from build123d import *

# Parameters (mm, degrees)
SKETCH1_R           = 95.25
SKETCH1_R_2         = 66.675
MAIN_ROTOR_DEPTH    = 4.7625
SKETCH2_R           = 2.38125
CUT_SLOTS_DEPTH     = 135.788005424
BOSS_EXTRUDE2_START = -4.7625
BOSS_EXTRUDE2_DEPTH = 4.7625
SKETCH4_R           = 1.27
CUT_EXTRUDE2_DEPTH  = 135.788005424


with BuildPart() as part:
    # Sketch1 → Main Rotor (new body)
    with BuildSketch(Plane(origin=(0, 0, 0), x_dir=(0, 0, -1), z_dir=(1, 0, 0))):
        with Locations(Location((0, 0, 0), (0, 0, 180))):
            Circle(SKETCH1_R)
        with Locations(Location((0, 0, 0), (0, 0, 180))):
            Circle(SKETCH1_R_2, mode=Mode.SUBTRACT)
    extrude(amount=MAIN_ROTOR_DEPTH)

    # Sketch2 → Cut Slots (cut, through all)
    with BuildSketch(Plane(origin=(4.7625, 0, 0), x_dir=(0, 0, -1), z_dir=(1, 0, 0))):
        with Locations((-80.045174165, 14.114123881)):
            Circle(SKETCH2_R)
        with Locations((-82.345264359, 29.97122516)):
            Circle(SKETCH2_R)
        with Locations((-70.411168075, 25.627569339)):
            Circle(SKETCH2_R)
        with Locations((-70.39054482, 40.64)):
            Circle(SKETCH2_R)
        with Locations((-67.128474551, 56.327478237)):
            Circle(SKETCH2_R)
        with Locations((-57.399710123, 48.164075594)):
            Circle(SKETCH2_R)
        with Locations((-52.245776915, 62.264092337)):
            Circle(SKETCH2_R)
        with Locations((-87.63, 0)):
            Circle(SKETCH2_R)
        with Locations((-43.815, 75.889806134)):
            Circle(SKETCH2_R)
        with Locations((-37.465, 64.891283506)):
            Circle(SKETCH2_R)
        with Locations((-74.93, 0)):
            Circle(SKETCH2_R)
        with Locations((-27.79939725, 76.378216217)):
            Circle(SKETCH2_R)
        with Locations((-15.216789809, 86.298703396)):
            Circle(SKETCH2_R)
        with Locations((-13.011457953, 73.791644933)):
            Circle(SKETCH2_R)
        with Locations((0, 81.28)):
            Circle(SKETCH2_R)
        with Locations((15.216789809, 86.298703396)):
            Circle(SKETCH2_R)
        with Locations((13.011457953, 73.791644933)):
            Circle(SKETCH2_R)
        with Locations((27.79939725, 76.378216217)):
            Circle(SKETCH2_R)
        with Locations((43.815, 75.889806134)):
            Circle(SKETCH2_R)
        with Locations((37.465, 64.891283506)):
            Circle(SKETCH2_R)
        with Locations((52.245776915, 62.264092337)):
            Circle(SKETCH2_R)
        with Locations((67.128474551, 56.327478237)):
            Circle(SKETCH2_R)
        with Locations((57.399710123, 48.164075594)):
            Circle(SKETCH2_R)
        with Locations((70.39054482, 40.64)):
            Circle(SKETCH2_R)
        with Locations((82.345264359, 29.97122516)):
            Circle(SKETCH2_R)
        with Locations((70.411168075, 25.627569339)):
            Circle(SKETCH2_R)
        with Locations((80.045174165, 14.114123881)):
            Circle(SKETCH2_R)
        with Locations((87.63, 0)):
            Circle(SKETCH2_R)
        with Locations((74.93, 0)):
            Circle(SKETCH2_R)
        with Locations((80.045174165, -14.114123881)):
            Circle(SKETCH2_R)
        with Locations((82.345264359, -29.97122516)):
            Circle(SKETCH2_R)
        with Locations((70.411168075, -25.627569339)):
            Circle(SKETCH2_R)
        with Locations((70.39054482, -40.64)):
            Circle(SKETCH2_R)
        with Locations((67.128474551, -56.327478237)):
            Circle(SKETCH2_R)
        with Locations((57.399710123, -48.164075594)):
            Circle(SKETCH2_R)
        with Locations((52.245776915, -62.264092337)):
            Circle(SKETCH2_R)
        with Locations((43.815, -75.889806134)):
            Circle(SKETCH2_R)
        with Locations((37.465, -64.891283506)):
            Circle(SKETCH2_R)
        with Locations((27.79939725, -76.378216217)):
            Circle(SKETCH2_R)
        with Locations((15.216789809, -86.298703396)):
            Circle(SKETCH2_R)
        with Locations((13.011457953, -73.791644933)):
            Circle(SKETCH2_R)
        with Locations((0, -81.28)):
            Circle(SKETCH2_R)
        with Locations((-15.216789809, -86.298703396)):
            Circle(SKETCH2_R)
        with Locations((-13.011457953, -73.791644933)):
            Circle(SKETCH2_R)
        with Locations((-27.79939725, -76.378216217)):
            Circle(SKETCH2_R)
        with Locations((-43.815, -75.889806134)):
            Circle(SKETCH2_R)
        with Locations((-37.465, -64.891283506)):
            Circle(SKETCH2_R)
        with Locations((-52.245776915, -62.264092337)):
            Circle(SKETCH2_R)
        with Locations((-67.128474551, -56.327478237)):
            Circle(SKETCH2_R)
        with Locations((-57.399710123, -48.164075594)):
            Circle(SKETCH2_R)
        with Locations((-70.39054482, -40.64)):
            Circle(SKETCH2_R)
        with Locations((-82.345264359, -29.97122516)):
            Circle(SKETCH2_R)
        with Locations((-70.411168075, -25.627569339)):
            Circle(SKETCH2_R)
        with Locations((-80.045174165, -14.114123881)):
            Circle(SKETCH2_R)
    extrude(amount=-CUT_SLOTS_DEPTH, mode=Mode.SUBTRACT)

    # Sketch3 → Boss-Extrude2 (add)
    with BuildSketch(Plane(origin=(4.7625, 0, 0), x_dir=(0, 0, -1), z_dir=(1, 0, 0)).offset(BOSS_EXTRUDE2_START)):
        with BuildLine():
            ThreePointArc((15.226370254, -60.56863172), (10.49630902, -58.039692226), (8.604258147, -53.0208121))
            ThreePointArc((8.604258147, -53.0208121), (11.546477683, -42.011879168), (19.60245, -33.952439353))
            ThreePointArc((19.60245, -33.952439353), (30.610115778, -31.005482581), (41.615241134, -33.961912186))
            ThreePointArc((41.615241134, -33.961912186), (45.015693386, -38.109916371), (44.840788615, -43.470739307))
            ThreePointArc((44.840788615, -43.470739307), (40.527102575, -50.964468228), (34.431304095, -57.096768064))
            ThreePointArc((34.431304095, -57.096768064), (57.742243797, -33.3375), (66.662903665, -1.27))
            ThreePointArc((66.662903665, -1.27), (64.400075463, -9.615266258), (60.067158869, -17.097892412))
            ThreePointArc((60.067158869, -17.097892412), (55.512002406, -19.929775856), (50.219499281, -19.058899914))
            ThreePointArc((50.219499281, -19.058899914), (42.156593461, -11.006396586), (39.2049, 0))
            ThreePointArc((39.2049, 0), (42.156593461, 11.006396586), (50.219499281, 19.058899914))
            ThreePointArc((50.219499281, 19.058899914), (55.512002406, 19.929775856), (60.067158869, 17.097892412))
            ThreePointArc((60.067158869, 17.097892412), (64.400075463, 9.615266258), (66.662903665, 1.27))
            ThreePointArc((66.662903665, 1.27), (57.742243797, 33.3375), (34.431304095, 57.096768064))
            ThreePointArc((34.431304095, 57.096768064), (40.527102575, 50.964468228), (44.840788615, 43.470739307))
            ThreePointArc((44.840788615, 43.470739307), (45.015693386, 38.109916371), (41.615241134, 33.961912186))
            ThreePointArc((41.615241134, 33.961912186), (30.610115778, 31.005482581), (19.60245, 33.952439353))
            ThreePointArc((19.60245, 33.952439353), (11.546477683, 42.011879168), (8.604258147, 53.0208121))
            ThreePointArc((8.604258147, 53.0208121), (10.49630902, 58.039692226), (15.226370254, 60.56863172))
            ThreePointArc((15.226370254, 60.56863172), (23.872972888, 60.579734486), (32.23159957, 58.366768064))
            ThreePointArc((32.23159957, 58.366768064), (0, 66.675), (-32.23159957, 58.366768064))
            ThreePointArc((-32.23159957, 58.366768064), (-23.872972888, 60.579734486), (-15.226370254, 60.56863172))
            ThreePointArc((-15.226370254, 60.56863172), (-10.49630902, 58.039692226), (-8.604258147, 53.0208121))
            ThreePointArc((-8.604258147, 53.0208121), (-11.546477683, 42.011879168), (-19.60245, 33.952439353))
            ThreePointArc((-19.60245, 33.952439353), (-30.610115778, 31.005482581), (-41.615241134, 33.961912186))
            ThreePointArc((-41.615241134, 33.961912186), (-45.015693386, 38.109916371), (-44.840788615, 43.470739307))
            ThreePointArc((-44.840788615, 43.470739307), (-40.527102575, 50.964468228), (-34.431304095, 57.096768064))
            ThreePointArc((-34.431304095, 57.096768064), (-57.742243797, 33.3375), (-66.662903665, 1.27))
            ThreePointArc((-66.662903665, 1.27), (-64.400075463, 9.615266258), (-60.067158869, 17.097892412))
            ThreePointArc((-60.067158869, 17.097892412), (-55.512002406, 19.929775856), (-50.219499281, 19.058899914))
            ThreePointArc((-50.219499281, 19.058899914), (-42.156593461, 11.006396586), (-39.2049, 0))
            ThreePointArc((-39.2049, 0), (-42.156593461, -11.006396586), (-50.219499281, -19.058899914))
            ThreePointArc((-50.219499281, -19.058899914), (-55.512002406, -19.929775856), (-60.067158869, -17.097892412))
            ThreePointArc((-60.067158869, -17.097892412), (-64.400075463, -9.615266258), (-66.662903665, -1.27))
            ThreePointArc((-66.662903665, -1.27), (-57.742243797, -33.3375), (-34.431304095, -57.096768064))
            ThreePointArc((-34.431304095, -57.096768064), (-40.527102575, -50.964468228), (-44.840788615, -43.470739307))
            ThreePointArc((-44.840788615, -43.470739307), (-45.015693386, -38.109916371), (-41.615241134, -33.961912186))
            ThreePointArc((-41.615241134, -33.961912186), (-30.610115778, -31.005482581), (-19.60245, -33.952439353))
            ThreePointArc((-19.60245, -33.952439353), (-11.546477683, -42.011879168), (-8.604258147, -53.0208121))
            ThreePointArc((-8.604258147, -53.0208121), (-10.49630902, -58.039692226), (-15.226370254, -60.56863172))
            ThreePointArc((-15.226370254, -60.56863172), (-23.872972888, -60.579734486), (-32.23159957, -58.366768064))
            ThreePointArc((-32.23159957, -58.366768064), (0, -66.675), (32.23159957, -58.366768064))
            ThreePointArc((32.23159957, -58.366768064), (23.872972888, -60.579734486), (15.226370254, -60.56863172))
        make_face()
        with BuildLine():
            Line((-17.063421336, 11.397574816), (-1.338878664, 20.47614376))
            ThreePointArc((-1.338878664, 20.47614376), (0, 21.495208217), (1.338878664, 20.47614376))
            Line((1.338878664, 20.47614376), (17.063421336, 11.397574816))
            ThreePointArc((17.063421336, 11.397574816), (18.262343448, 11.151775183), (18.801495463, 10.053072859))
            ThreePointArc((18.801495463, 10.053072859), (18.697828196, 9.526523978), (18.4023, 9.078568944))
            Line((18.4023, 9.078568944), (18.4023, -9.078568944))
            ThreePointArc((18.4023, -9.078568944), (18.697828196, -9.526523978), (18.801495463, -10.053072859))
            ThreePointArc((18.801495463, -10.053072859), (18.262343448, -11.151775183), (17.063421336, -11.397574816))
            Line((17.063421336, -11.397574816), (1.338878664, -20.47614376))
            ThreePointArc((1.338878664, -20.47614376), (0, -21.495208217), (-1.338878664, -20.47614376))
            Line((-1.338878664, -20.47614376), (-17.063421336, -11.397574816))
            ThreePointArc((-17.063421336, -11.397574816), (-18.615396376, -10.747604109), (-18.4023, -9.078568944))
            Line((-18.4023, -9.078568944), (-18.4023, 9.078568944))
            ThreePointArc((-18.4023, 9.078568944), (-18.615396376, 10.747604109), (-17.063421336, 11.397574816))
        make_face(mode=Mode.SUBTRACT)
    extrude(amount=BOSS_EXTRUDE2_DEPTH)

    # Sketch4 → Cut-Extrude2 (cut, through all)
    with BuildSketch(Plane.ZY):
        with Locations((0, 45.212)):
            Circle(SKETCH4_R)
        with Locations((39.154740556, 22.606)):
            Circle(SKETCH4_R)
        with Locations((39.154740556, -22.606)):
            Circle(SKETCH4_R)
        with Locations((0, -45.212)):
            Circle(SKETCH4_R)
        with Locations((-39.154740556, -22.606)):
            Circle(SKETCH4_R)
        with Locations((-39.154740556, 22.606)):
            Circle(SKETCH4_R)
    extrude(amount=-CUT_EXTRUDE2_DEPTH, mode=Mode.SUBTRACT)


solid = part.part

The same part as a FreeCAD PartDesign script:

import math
import FreeCAD as App
import Part
import Sketcher
Q = App.Units.Quantity

doc = App.newDocument("Part")
body = doc.addObject("PartDesign::Body", "Body")

# Sketch on YZ plane
sketch1 = body.newObject("Sketcher::SketchObject", "Sketch")
sketch1.AttachmentSupport = (doc.getObject("YZ_Plane"), [""])
sketch1.MapMode = "FlatFace"
sketch1.addGeometry([
    Part.Circle(App.Vector(0, 0, 0), App.Vector(0, 0, 1), 95),
    Part.Circle(App.Vector(0, 0, 0), App.Vector(0, 0, 1), 67),
], False)
sketch1.addConstraint([
    Sketcher.Constraint("Coincident", 0, 3, -1, 1),
    Sketcher.Constraint("Coincident", 1, 3, -1, 1),
    Sketcher.Constraint("Diameter", 0, Q("7.5 in")),
    Sketcher.Constraint("Diameter", 1, Q("5.25 in")),
])
pad1 = body.newObject("PartDesign::Pad", "Pad")
pad1.Profile = sketch1
pad1.Length = Q("0.1875 in")

# Sketch on YZ plane
sketch2 = body.newObject("Sketcher::SketchObject", "Sketch001")
sketch2.AttachmentSupport = (doc.getObject("YZ_Plane"), [""])
sketch2.MapMode = "FlatFace"
sketch2.AttachmentOffset = App.Placement(App.Vector(0, 0, 0.1875 * 25.4), App.Rotation())
sketch2.addGeometry([
    Part.Circle(App.Vector(14.1, 80, 0), App.Vector(0, 0, 1), 2.4),  # 0
    Part.Circle(App.Vector(30, 82.3, 0), App.Vector(0, 0, 1), 2.4),  # 1
    Part.Circle(App.Vector(25.6, 70.4, 0), App.Vector(0, 0, 1), 2.4),  # 2
    Part.Circle(App.Vector(40.6, 70.4, 0), App.Vector(0, 0, 1), 2.4),  # 3
    Part.Circle(App.Vector(56.3, 67.1, 0), App.Vector(0, 0, 1), 2.4),  # 4
    Part.Circle(App.Vector(48.2, 57.4, 0), App.Vector(0, 0, 1), 2.4),  # 5
    Part.Circle(App.Vector(62.3, 52.2, 0), App.Vector(0, 0, 1), 2.4),  # 6
    Part.Circle(App.Vector(0, 87.6, 0), App.Vector(0, 0, 1), 2.4),  # 7
    Part.Circle(App.Vector(75.9, 43.8, 0), App.Vector(0, 0, 1), 2.4),  # 8
    Part.Circle(App.Vector(64.9, 37.5, 0), App.Vector(0, 0, 1), 2.4),  # 9
    Part.Circle(App.Vector(0, 74.9, 0), App.Vector(0, 0, 1), 2.4),  # 10
    Part.Circle(App.Vector(76.4, 27.8, 0), App.Vector(0, 0, 1), 2.4),  # 11
    Part.Circle(App.Vector(86.3, 15.2, 0), App.Vector(0, 0, 1), 2.4),  # 12
    Part.Circle(App.Vector(73.8, 13, 0), App.Vector(0, 0, 1), 2.4),  # 13
    Part.Circle(App.Vector(81.3, 0, 0), App.Vector(0, 0, 1), 2.4),  # 14
    Part.Circle(App.Vector(86.3, -15.2, 0), App.Vector(0, 0, 1), 2.4),  # 15
    Part.Circle(App.Vector(73.8, -13, 0), App.Vector(0, 0, 1), 2.4),  # 16
    Part.Circle(App.Vector(76.4, -27.8, 0), App.Vector(0, 0, 1), 2.4),  # 17
    Part.Circle(App.Vector(75.9, -43.8, 0), App.Vector(0, 0, 1), 2.4),  # 18
    Part.Circle(App.Vector(64.9, -37.5, 0), App.Vector(0, 0, 1), 2.4),  # 19
    Part.Circle(App.Vector(62.3, -52.2, 0), App.Vector(0, 0, 1), 2.4),  # 20
    Part.Circle(App.Vector(56.3, -67.1, 0), App.Vector(0, 0, 1), 2.4),  # 21
    Part.Circle(App.Vector(48.2, -57.4, 0), App.Vector(0, 0, 1), 2.4),  # 22
    Part.Circle(App.Vector(40.6, -70.4, 0), App.Vector(0, 0, 1), 2.4),  # 23
    Part.Circle(App.Vector(30, -82.3, 0), App.Vector(0, 0, 1), 2.4),  # 24
    Part.Circle(App.Vector(25.6, -70.4, 0), App.Vector(0, 0, 1), 2.4),  # 25
    Part.Circle(App.Vector(14.1, -80, 0), App.Vector(0, 0, 1), 2.4),  # 26
    Part.Circle(App.Vector(0, -87.6, 0), App.Vector(0, 0, 1), 2.4),  # 27
    Part.Circle(App.Vector(0, -74.9, 0), App.Vector(0, 0, 1), 2.4),  # 28
    Part.Circle(App.Vector(-14.1, -80, 0), App.Vector(0, 0, 1), 2.4),  # 29
    Part.Circle(App.Vector(-30, -82.3, 0), App.Vector(0, 0, 1), 2.4),  # 30
    Part.Circle(App.Vector(-25.6, -70.4, 0), App.Vector(0, 0, 1), 2.4),  # 31
    Part.Circle(App.Vector(-40.6, -70.4, 0), App.Vector(0, 0, 1), 2.4),  # 32
    Part.Circle(App.Vector(-56.3, -67.1, 0), App.Vector(0, 0, 1), 2.4),  # 33
    Part.Circle(App.Vector(-48.2, -57.4, 0), App.Vector(0, 0, 1), 2.4),  # 34
    Part.Circle(App.Vector(-62.3, -52.2, 0), App.Vector(0, 0, 1), 2.4),  # 35
    Part.Circle(App.Vector(-75.9, -43.8, 0), App.Vector(0, 0, 1), 2.4),  # 36
    Part.Circle(App.Vector(-64.9, -37.5, 0), App.Vector(0, 0, 1), 2.4),  # 37
    Part.Circle(App.Vector(-76.4, -27.8, 0), App.Vector(0, 0, 1), 2.4),  # 38
    Part.Circle(App.Vector(-86.3, -15.2, 0), App.Vector(0, 0, 1), 2.4),  # 39
    Part.Circle(App.Vector(-73.8, -13, 0), App.Vector(0, 0, 1), 2.4),  # 40
    Part.Circle(App.Vector(-81.3, 0, 0), App.Vector(0, 0, 1), 2.4),  # 41
    Part.Circle(App.Vector(-86.3, 15.2, 0), App.Vector(0, 0, 1), 2.4),  # 42
    Part.Circle(App.Vector(-73.8, 13, 0), App.Vector(0, 0, 1), 2.4),  # 43
    Part.Circle(App.Vector(-76.4, 27.8, 0), App.Vector(0, 0, 1), 2.4),  # 44
    Part.Circle(App.Vector(-75.9, 43.8, 0), App.Vector(0, 0, 1), 2.4),  # 45
    Part.Circle(App.Vector(-64.9, 37.5, 0), App.Vector(0, 0, 1), 2.4),  # 46
    Part.Circle(App.Vector(-62.3, 52.2, 0), App.Vector(0, 0, 1), 2.4),  # 47
    Part.Circle(App.Vector(-56.3, 67.1, 0), App.Vector(0, 0, 1), 2.4),  # 48
    Part.Circle(App.Vector(-48.2, 57.4, 0), App.Vector(0, 0, 1), 2.4),  # 49
    Part.Circle(App.Vector(-40.6, 70.4, 0), App.Vector(0, 0, 1), 2.4),  # 50
    Part.Circle(App.Vector(-30, 82.3, 0), App.Vector(0, 0, 1), 2.4),  # 51
    Part.Circle(App.Vector(-25.6, 70.4, 0), App.Vector(0, 0, 1), 2.4),  # 52
    Part.Circle(App.Vector(-14.1, 80, 0), App.Vector(0, 0, 1), 2.4),  # 53
], False)
sketch2.addConstraint([
    Sketcher.Constraint("Equal", 0, 1),
    Sketcher.Constraint("Equal", 1, 2),
    Sketcher.Constraint("Equal", 2, 3),
    Sketcher.Constraint("Equal", 3, 4),
    Sketcher.Constraint("Equal", 4, 5),
    Sketcher.Constraint("Equal", 5, 6),
    Sketcher.Constraint("Equal", 6, 7),
    Sketcher.Constraint("Equal", 7, 8),
    Sketcher.Constraint("Equal", 8, 9),
    Sketcher.Constraint("Equal", 9, 10),
    Sketcher.Constraint("Equal", 10, 11),
    Sketcher.Constraint("Equal", 11, 12),
    Sketcher.Constraint("Equal", 12, 13),
    Sketcher.Constraint("Equal", 13, 14),
    Sketcher.Constraint("Equal", 14, 15),
    Sketcher.Constraint("Equal", 15, 16),
    Sketcher.Constraint("Equal", 16, 17),
    Sketcher.Constraint("Equal", 17, 18),
    Sketcher.Constraint("Equal", 18, 19),
    Sketcher.Constraint("Equal", 19, 20),
    Sketcher.Constraint("Equal", 20, 21),
    Sketcher.Constraint("Equal", 21, 22),
    Sketcher.Constraint("Equal", 22, 23),
    Sketcher.Constraint("Equal", 23, 24),
    Sketcher.Constraint("Equal", 24, 25),
    Sketcher.Constraint("Equal", 25, 26),
    Sketcher.Constraint("Equal", 26, 27),
    Sketcher.Constraint("Equal", 27, 28),
    Sketcher.Constraint("Equal", 28, 29),
    Sketcher.Constraint("Equal", 29, 30),
    Sketcher.Constraint("Equal", 30, 31),
    Sketcher.Constraint("Equal", 31, 32),
    Sketcher.Constraint("Equal", 32, 33),
    Sketcher.Constraint("Equal", 33, 34),
    Sketcher.Constraint("Equal", 34, 35),
    Sketcher.Constraint("Equal", 35, 36),
    Sketcher.Constraint("Equal", 36, 37),
    Sketcher.Constraint("Equal", 37, 38),
    Sketcher.Constraint("Equal", 38, 39),
    Sketcher.Constraint("Equal", 39, 40),
    Sketcher.Constraint("Equal", 40, 41),
    Sketcher.Constraint("Equal", 41, 42),
    Sketcher.Constraint("Equal", 42, 43),
    Sketcher.Constraint("Equal", 43, 44),
    Sketcher.Constraint("Equal", 44, 45),
    Sketcher.Constraint("Equal", 45, 46),
    Sketcher.Constraint("Equal", 46, 47),
    Sketcher.Constraint("Equal", 47, 48),
    Sketcher.Constraint("Equal", 48, 49),
    Sketcher.Constraint("Equal", 49, 50),
    Sketcher.Constraint("Equal", 50, 51),
    Sketcher.Constraint("Equal", 51, 52),
    Sketcher.Constraint("Equal", 52, 53),
    Sketcher.Constraint("Symmetric", 7, 3, 27, 3, -1, 1),
    Sketcher.Constraint("Symmetric", 10, 3, 28, 3, -1, 1),
    Sketcher.Constraint("Symmetric", 0, 3, 29, 3, -1, 1),
    Sketcher.Constraint("Symmetric", 1, 3, 30, 3, -1, 1),
    Sketcher.Constraint("Symmetric", 2, 3, 31, 3, -1, 1),
    Sketcher.Constraint("Symmetric", 3, 3, 32, 3, -1, 1),
    Sketcher.Constraint("Symmetric", 4, 3, 33, 3, -1, 1),
    Sketcher.Constraint("Symmetric", 5, 3, 34, 3, -1, 1),
    Sketcher.Constraint("Symmetric", 6, 3, 35, 3, -1, 1),
    Sketcher.Constraint("Symmetric", 8, 3, 36, 3, -1, 1),
    Sketcher.Constraint("Symmetric", 9, 3, 37, 3, -1, 1),
    Sketcher.Constraint("Symmetric", 11, 3, 38, 3, -1, 1),
    Sketcher.Constraint("Symmetric", 12, 3, 39, 3, -1, 1),
    Sketcher.Constraint("Symmetric", 13, 3, 40, 3, -1, 1),
    Sketcher.Constraint("Symmetric", 14, 3, 41, 3, -1, 1),
    Sketcher.Constraint("Symmetric", 15, 3, 42, 3, -1, 1),
    Sketcher.Constraint("Symmetric", 16, 3, 43, 3, -1, 1),
    Sketcher.Constraint("Symmetric", 17, 3, 44, 3, -1, 1),
    Sketcher.Constraint("Symmetric", 18, 3, 45, 3, -1, 1),
    Sketcher.Constraint("Symmetric", 19, 3, 46, 3, -1, 1),
    Sketcher.Constraint("Symmetric", 20, 3, 47, 3, -1, 1),
    Sketcher.Constraint("Symmetric", 21, 3, 48, 3, -1, 1),
    Sketcher.Constraint("Symmetric", 22, 3, 49, 3, -1, 1),
    Sketcher.Constraint("Symmetric", 23, 3, 50, 3, -1, 1),
    Sketcher.Constraint("Symmetric", 24, 3, 51, 3, -1, 1),
    Sketcher.Constraint("Symmetric", 25, 3, 52, 3, -1, 1),
    Sketcher.Constraint("Symmetric", 26, 3, 53, 3, -1, 1),
    Sketcher.Constraint("Symmetric", 26, 3, 29, 3, -2),
    Sketcher.Constraint("Symmetric", 24, 3, 30, 3, -2),
    Sketcher.Constraint("Symmetric", 25, 3, 31, 3, -2),
    Sketcher.Constraint("Symmetric", 23, 3, 32, 3, -2),
    Sketcher.Constraint("Symmetric", 21, 3, 33, 3, -2),
    Sketcher.Constraint("Symmetric", 22, 3, 34, 3, -2),
    Sketcher.Constraint("Symmetric", 20, 3, 35, 3, -2),
    Sketcher.Constraint("Symmetric", 18, 3, 36, 3, -2),
    Sketcher.Constraint("Symmetric", 19, 3, 37, 3, -2),
    Sketcher.Constraint("Symmetric", 17, 3, 38, 3, -2),
    Sketcher.Constraint("Symmetric", 15, 3, 39, 3, -2),
    Sketcher.Constraint("Symmetric", 16, 3, 40, 3, -2),
    Sketcher.Constraint("PointOnObject", 7, 3, -2),
    Sketcher.Constraint("PointOnObject", 10, 3, -2),
    Sketcher.Constraint("PointOnObject", 14, 3, -1),
    Sketcher.Constraint("Diameter", 0, Q("0.1875 in")),
    Sketcher.Constraint("DistanceX", -1, 1, 3, 3, Q("1.6 in")),
    Sketcher.Constraint("DistanceX", -1, 1, 14, 3, Q("3.2 in")),
    Sketcher.Constraint("DistanceY", 10, 3, 7, 3, Q("0.5 in")),
    Sketcher.Constraint("DistanceY", -1, 1, 7, 3, Q("3.45 in")),
    Sketcher.Constraint("DistanceY", 9, 3, 8, 3, Q("0.25 in")),
    Sketcher.Constraint("DistanceY", -1, 1, 8, 3, Q("1.725 in")),
    Sketcher.Constraint("DistanceX", 0, 3, 1, 3, Q("15.857101 mm")),
    Sketcher.Constraint("DistanceY", 4, 3, 0, 3, Q("12.9167 mm")),
    Sketcher.Constraint("DistanceX", -1, 1, 2, 3, Q("25.627569 mm")),
    Sketcher.Constraint("DistanceY", -1, 1, 2, 3, Q("70.411168 mm")),
    Sketcher.Constraint("DistanceX", -1, 1, 4, 3, Q("56.327478 mm")),
    Sketcher.Constraint("DistanceY", -1, 1, 5, 3, Q("57.39971 mm")),
    Sketcher.Constraint("DistanceY", -1, 1, 12, 3, Q("15.21679 mm")),
    Sketcher.Constraint("DistanceY", 0, 3, 1, 3, Q("2.30009 mm")),
    Sketcher.Constraint("DistanceY", 3, 3, 1, 3, Q("11.95472 mm")),
    Sketcher.Constraint("DistanceX", 1, 3, 5, 3, Q("18.19285 mm")),
    Sketcher.Constraint("DistanceY", 6, 3, 2, 3, Q("18.165391 mm")),
    Sketcher.Constraint("DistanceX", 5, 3, 8, 3, Q("27.725731 mm")),
    Sketcher.Constraint("DistanceX", 6, 3, 9, 3, Q("2.627191 mm")),
    Sketcher.Constraint("DistanceX", 8, 3, 11, 3, Q("0.48841 mm")),
    Sketcher.Constraint("DistanceY", 11, 3, 6, 3, Q("24.44638 mm")),
    Sketcher.Constraint("DistanceX", 9, 3, 12, 3, Q("21.40742 mm")),
    Sketcher.Constraint("DistanceX", 13, 3, 12, 3, Q("12.507058 mm")),
    Sketcher.Constraint("DistanceY", 13, 3, 12, 3, Q("2.205332 mm")),
    Sketcher.Constraint("DistanceX", 13, 3, 11, 3, Q("2.586571 mm")),
    Sketcher.Constraint("DistanceX", 29, 3, 24, 3, Q("44.085349 mm")),
    Sketcher.Constraint("DistanceY", -1, 1, 0, 3, Q("80.045174 mm")),
])
pocket1 = body.newObject("PartDesign::Pocket", "Pocket")
pocket1.Profile = sketch2
pocket1.Type = "ThroughAll"

# Sketch on YZ plane
sketch3 = body.newObject("Sketcher::SketchObject", "Sketch002")
sketch3.AttachmentSupport = (doc.getObject("YZ_Plane"), [""])
sketch3.MapMode = "FlatFace"
sketch3.addGeometry([
    Part.ArcOfCircle(Part.Circle(App.Vector(-53, -16.2, 0), App.Vector(0, 0, 1), 7.6), math.radians(90), math.radians(172)),  # 0
    Part.ArcOfCircle(Part.Circle(App.Vector(-53, -30.6, 0), App.Vector(0, 0, 1), 22), math.radians(30), math.radians(90)),  # 1
    Part.ArcOfCircle(Part.Circle(App.Vector(-53, -30.6, 0), App.Vector(0, 0, 1), 22), math.radians(-30), math.radians(30)),  # 2
    Part.ArcOfCircle(Part.Circle(App.Vector(-40.6, -37.8, 0), App.Vector(0, 0, 1), 7.6), math.radians(-112), math.radians(-30)),  # 3
    Part.ArcOfCircle(Part.Circle(App.Vector(-30.7, -14, 0), App.Vector(0, 0, 1), 33.3), math.radians(-142), math.radians(-112)),  # 4
    Part.ArcOfCircle(Part.Circle(App.Vector(0, 0, 0), App.Vector(0, 0, 1), 66.7), math.radians(-149), math.radians(-91)),  # 5
    Part.ArcOfCircle(Part.Circle(App.Vector(3.2, -33.6, 0), App.Vector(0, 0, 1), 33.3), math.radians(-128), math.radians(-98)),  # 6
    Part.ArcOfCircle(Part.Circle(App.Vector(-12.5, -54, 0), App.Vector(0, 0, 1), 7.6), math.radians(150), math.radians(232)),  # 7
    Part.ArcOfCircle(Part.Circle(App.Vector(0, -61.2, 0), App.Vector(0, 0, 1), 22), math.radians(90), math.radians(150)),  # 8
    Part.ArcOfCircle(Part.Circle(App.Vector(0, -61.2, 0), App.Vector(0, 0, 1), 22), math.radians(30), math.radians(90)),  # 9
    Part.ArcOfCircle(Part.Circle(App.Vector(12.5, -54, 0), App.Vector(0, 0, 1), 7.6), math.radians(-52), math.radians(30)),  # 10
    Part.ArcOfCircle(Part.Circle(App.Vector(-3.2, -33.6, 0), App.Vector(0, 0, 1), 33.3), math.radians(-82), math.radians(-52)),  # 11
    Part.ArcOfCircle(Part.Circle(App.Vector(0, 0, 0), App.Vector(0, 0, 1), 66.7), math.radians(-89), math.radians(-31)),  # 12
    Part.ArcOfCircle(Part.Circle(App.Vector(30.7, -14, 0), App.Vector(0, 0, 1), 33.3), math.radians(-68), math.radians(-38)),  # 13
    Part.ArcOfCircle(Part.Circle(App.Vector(40.6, -37.8, 0), App.Vector(0, 0, 1), 7.6), math.radians(-150), math.radians(-68)),  # 14
    Part.ArcOfCircle(Part.Circle(App.Vector(53, -30.6, 0), App.Vector(0, 0, 1), 22), math.radians(150), math.radians(210)),  # 15
    Part.ArcOfCircle(Part.Circle(App.Vector(53, -30.6, 0), App.Vector(0, 0, 1), 22), math.radians(90), math.radians(150)),  # 16
    Part.ArcOfCircle(Part.Circle(App.Vector(53, -16.2, 0), App.Vector(0, 0, 1), 7.6), math.radians(8), math.radians(90)),  # 17
    Part.ArcOfCircle(Part.Circle(App.Vector(27.5, -19.6, 0), App.Vector(0, 0, 1), 33.3), math.radians(-22), math.radians(8)),  # 18
    Part.ArcOfCircle(Part.Circle(App.Vector(0, 0, 0), App.Vector(0, 0, 1), 66.7), math.radians(-29), math.radians(29)),  # 19
    Part.ArcOfCircle(Part.Circle(App.Vector(27.5, 19.6, 0), App.Vector(0, 0, 1), 33.3), math.radians(-8), math.radians(22)),  # 20
    Part.ArcOfCircle(Part.Circle(App.Vector(53, 16.2, 0), App.Vector(0, 0, 1), 7.6), math.radians(-90), math.radians(-8)),  # 21
    Part.ArcOfCircle(Part.Circle(App.Vector(53, 30.6, 0), App.Vector(0, 0, 1), 22), math.radians(-150), math.radians(-90)),  # 22
    Part.ArcOfCircle(Part.Circle(App.Vector(53, 30.6, 0), App.Vector(0, 0, 1), 22), math.radians(150), math.radians(210)),  # 23
    Part.ArcOfCircle(Part.Circle(App.Vector(40.6, 37.8, 0), App.Vector(0, 0, 1), 7.6), math.radians(68), math.radians(150)),  # 24
    Part.ArcOfCircle(Part.Circle(App.Vector(30.7, 14, 0), App.Vector(0, 0, 1), 33.3), math.radians(38), math.radians(68)),  # 25
    Part.ArcOfCircle(Part.Circle(App.Vector(0, 0, 0), App.Vector(0, 0, 1), 66.7), math.radians(31), math.radians(89)),  # 26
    Part.ArcOfCircle(Part.Circle(App.Vector(-3.2, 33.6, 0), App.Vector(0, 0, 1), 33.3), math.radians(52), math.radians(82)),  # 27
    Part.ArcOfCircle(Part.Circle(App.Vector(12.5, 54, 0), App.Vector(0, 0, 1), 7.6), math.radians(-30), math.radians(52)),  # 28
    Part.ArcOfCircle(Part.Circle(App.Vector(0, 61.2, 0), App.Vector(0, 0, 1), 22), math.radians(-90), math.radians(-30)),  # 29
    Part.ArcOfCircle(Part.Circle(App.Vector(0, 61.2, 0), App.Vector(0, 0, 1), 22), math.radians(-150), math.radians(-90)),  # 30
    Part.ArcOfCircle(Part.Circle(App.Vector(-12.5, 54, 0), App.Vector(0, 0, 1), 7.6), math.radians(128), math.radians(210)),  # 31
    Part.ArcOfCircle(Part.Circle(App.Vector(3.2, 33.6, 0), App.Vector(0, 0, 1), 33.3), math.radians(98), math.radians(128)),  # 32
    Part.ArcOfCircle(Part.Circle(App.Vector(0, 0, 0), App.Vector(0, 0, 1), 66.7), math.radians(91), math.radians(149)),  # 33
    Part.ArcOfCircle(Part.Circle(App.Vector(-30.7, 14, 0), App.Vector(0, 0, 1), 33.3), math.radians(112), math.radians(142)),  # 34
    Part.ArcOfCircle(Part.Circle(App.Vector(-40.6, 37.8, 0), App.Vector(0, 0, 1), 7.6), math.radians(30), math.radians(112)),  # 35
    Part.ArcOfCircle(Part.Circle(App.Vector(-53, 30.6, 0), App.Vector(0, 0, 1), 22), math.radians(-30), math.radians(30)),  # 36
    Part.ArcOfCircle(Part.Circle(App.Vector(-53, 30.6, 0), App.Vector(0, 0, 1), 22), math.radians(-90), math.radians(-30)),  # 37
    Part.ArcOfCircle(Part.Circle(App.Vector(-53, 16.2, 0), App.Vector(0, 0, 1), 7.6), math.radians(-172), math.radians(-90)),  # 38
    Part.ArcOfCircle(Part.Circle(App.Vector(-27.5, 19.6, 0), App.Vector(0, 0, 1), 33.3), math.radians(158), math.radians(188)),  # 39
    Part.ArcOfCircle(Part.Circle(App.Vector(0, 0, 0), App.Vector(0, 0, 1), 66.7), math.radians(151), math.radians(209)),  # 40
    Part.ArcOfCircle(Part.Circle(App.Vector(-27.5, -19.6, 0), App.Vector(0, 0, 1), 33.3), math.radians(172), math.radians(202)),  # 41
    Part.ArcOfCircle(Part.Circle(App.Vector(10.1, 17.4, 0), App.Vector(0, 0, 1), 1.4), math.radians(-15), math.radians(135)),  # 42
    Part.LineSegment(App.Vector(11.4, 17.1, 0), App.Vector(20.5, 1.3, 0)),  # 43
    Part.ArcOfCircle(Part.Circle(App.Vector(20.1, 0, 0), App.Vector(0, 0, 1), 1.4), math.radians(-75), math.radians(75)),  # 44
    Part.LineSegment(App.Vector(20.5, -1.3, 0), App.Vector(11.4, -17.1, 0)),  # 45
    Part.ArcOfCircle(Part.Circle(App.Vector(10.1, -17.4, 0), App.Vector(0, 0, 1), 1.4), math.radians(-90), math.radians(15)),  # 46
    Part.ArcOfCircle(Part.Circle(App.Vector(10.1, -17.4, 0), App.Vector(0, 0, 1), 1.4), math.radians(-135), math.radians(-90)),  # 47
    Part.LineSegment(App.Vector(9.1, -18.4, 0), App.Vector(-9.1, -18.4, 0)),  # 48
    Part.ArcOfCircle(Part.Circle(App.Vector(-10.1, -17.4, 0), App.Vector(0, 0, 1), 1.4), math.radians(-90), math.radians(-45)),  # 49
    Part.ArcOfCircle(Part.Circle(App.Vector(-10.1, -17.4, 0), App.Vector(0, 0, 1), 1.4), math.radians(165), math.radians(270)),  # 50
    Part.LineSegment(App.Vector(-11.4, -17.1, 0), App.Vector(-20.5, -1.3, 0)),  # 51
    Part.ArcOfCircle(Part.Circle(App.Vector(-20.1, 0, 0), App.Vector(0, 0, 1), 1.4), math.radians(105), math.radians(255)),  # 52
    Part.LineSegment(App.Vector(-20.5, 1.3, 0), App.Vector(-11.4, 17.1, 0)),  # 53
    Part.ArcOfCircle(Part.Circle(App.Vector(-10.1, 17.4, 0), App.Vector(0, 0, 1), 1.4), math.radians(45), math.radians(195)),  # 54
    Part.LineSegment(App.Vector(-9.1, 18.4, 0), App.Vector(9.1, 18.4, 0)),  # 55
], False)
sketch3.addConstraint([
    Sketcher.Constraint("Tangent", 0, 1, 1, 2),
    Sketcher.Constraint("Tangent", 1, 1, 2, 2),
    Sketcher.Constraint("Tangent", 2, 1, 3, 2),
    Sketcher.Constraint("Tangent", 3, 1, 4, 2),
    Sketcher.Constraint("Coincident", 4, 1, 5, 1),
    Sketcher.Constraint("Coincident", 5, 2, 6, 2),
    Sketcher.Constraint("Tangent", 6, 1, 7, 2),
    Sketcher.Constraint("Tangent", 7, 1, 8, 2),
    Sketcher.Constraint("Tangent", 8, 1, 9, 2),
    Sketcher.Constraint("Tangent", 9, 1, 10, 2),
    Sketcher.Constraint("Tangent", 10, 1, 11, 2),
    Sketcher.Constraint("Coincident", 11, 1, 12, 1),
    Sketcher.Constraint("Coincident", 12, 2, 13, 2),
    Sketcher.Constraint("Tangent", 13, 1, 14, 2),
    Sketcher.Constraint("Tangent", 14, 1, 15, 2),
    Sketcher.Constraint("Tangent", 15, 1, 16, 2),
    Sketcher.Constraint("Tangent", 16, 1, 17, 2),
    Sketcher.Constraint("Tangent", 17, 1, 18, 2),
    Sketcher.Constraint("Coincident", 18, 1, 19, 1),
    Sketcher.Constraint("Coincident", 19, 2, 20, 2),
    Sketcher.Constraint("Tangent", 20, 1, 21, 2),
    Sketcher.Constraint("Tangent", 21, 1, 22, 2),
    Sketcher.Constraint("Tangent", 22, 1, 23, 2),
    Sketcher.Constraint("Tangent", 23, 1, 24, 2),
    Sketcher.Constraint("Tangent", 24, 1, 25, 2),
    Sketcher.Constraint("Coincident", 25, 1, 26, 1),
    Sketcher.Constraint("Coincident", 26, 2, 27, 2),
    Sketcher.Constraint("Tangent", 27, 1, 28, 2),
    Sketcher.Constraint("Tangent", 28, 1, 29, 2),
    Sketcher.Constraint("Tangent", 29, 1, 30, 2),
    Sketcher.Constraint("Tangent", 30, 1, 31, 2),
    Sketcher.Constraint("Tangent", 31, 1, 32, 2),
    Sketcher.Constraint("Coincident", 32, 1, 33, 1),
    Sketcher.Constraint("Coincident", 33, 2, 34, 2),
    Sketcher.Constraint("Tangent", 34, 1, 35, 2),
    Sketcher.Constraint("Tangent", 35, 1, 36, 2),
    Sketcher.Constraint("Tangent", 36, 1, 37, 2),
    Sketcher.Constraint("Tangent", 37, 1, 38, 2),
    Sketcher.Constraint("Tangent", 38, 1, 39, 2),
    Sketcher.Constraint("Coincident", 39, 1, 40, 1),
    Sketcher.Constraint("Coincident", 40, 2, 41, 2),
    Sketcher.Constraint("Tangent", 41, 1, 0, 2),
    Sketcher.Constraint("Coincident", 42, 1, 43, 1),
    Sketcher.Constraint("Coincident", 43, 2, 44, 2),
    Sketcher.Constraint("Coincident", 44, 1, 45, 1),
    Sketcher.Constraint("Coincident", 45, 2, 46, 2),
    Sketcher.Constraint("Tangent", 46, 1, 47, 2),
    Sketcher.Constraint("Coincident", 47, 1, 48, 1),
    Sketcher.Constraint("Coincident", 48, 2, 49, 2),
    Sketcher.Constraint("Tangent", 49, 1, 50, 2),
    Sketcher.Constraint("Coincident", 50, 1, 51, 1),
    Sketcher.Constraint("Coincident", 51, 2, 52, 2),
    Sketcher.Constraint("Coincident", 52, 1, 53, 1),
    Sketcher.Constraint("Coincident", 53, 2, 54, 2),
    Sketcher.Constraint("Coincident", 54, 1, 55, 1),
    Sketcher.Constraint("Coincident", 55, 2, 42, 2),
    Sketcher.Constraint("Horizontal", 48),
    Sketcher.Constraint("Horizontal", 55),
    Sketcher.Constraint("Coincident", 5, 3, -1, 1),
    Sketcher.Constraint("Coincident", 12, 3, -1, 1),
    Sketcher.Constraint("Coincident", 19, 3, -1, 1),
    Sketcher.Constraint("Coincident", 26, 3, -1, 1),
    Sketcher.Constraint("Coincident", 33, 3, -1, 1),
    Sketcher.Constraint("Coincident", 40, 3, -1, 1),
    Sketcher.Constraint("Equal", 1, 2),
    Sketcher.Constraint("Equal", 0, 3),
    Sketcher.Constraint("Equal", 4, 6),
    Sketcher.Constraint("Equal", 3, 7),
    Sketcher.Constraint("Equal", 2, 8),
    Sketcher.Constraint("Equal", 8, 9),
    Sketcher.Constraint("Equal", 7, 10),
    Sketcher.Constraint("Equal", 6, 11),
    Sketcher.Constraint("Equal", 5, 12),
    Sketcher.Constraint("Equal", 11, 13),
    Sketcher.Constraint("Equal", 10, 14),
    Sketcher.Constraint("Equal", 9, 15),
    Sketcher.Constraint("Equal", 15, 16),
    Sketcher.Constraint("Equal", 14, 17),
    Sketcher.Constraint("Equal", 13, 18),
    Sketcher.Constraint("Equal", 12, 19),
    Sketcher.Constraint("Equal", 18, 20),
    Sketcher.Constraint("Equal", 17, 21),
    Sketcher.Constraint("Equal", 16, 22),
    Sketcher.Constraint("Equal", 22, 23),
    Sketcher.Constraint("Equal", 21, 24),
    Sketcher.Constraint("Equal", 20, 25),
    Sketcher.Constraint("Equal", 19, 26),
    Sketcher.Constraint("Equal", 25, 27),
    Sketcher.Constraint("Equal", 24, 28),
    Sketcher.Constraint("Equal", 23, 29),
    Sketcher.Constraint("Equal", 29, 30),
    Sketcher.Constraint("Equal", 28, 31),
    Sketcher.Constraint("Equal", 27, 32),
    Sketcher.Constraint("Equal", 26, 33),
    Sketcher.Constraint("Equal", 32, 34),
    Sketcher.Constraint("Equal", 31, 35),
    Sketcher.Constraint("Equal", 30, 36),
    Sketcher.Constraint("Equal", 36, 37),
    Sketcher.Constraint("Equal", 35, 38),
    Sketcher.Constraint("Equal", 34, 39),
    Sketcher.Constraint("Equal", 33, 40),
    Sketcher.Constraint("Equal", 39, 41),
    Sketcher.Constraint("Equal", 42, 44),
    Sketcher.Constraint("Equal", 44, 46),
    Sketcher.Constraint("Equal", 46, 47),
    Sketcher.Constraint("Equal", 47, 49),
    Sketcher.Constraint("Equal", 49, 50),
    Sketcher.Constraint("Equal", 50, 52),
    Sketcher.Constraint("Equal", 52, 54),
    Sketcher.Constraint("Symmetric", 0, 3, 21, 3, -1, 1),
    Sketcher.Constraint("Symmetric", 3, 3, 24, 3, -1, 1),
    Sketcher.Constraint("Symmetric", 6, 3, 27, 3, -1, 1),
    Sketcher.Constraint("Symmetric", 8, 3, 29, 3, -1, 1),
    Sketcher.Constraint("Symmetric", 11, 3, 32, 3, -1, 1),
    Sketcher.Constraint("Symmetric", 13, 3, 34, 3, -1, 1),
    Sketcher.Constraint("Symmetric", 15, 3, 36, 3, -1, 1),
    Sketcher.Constraint("Symmetric", 18, 3, 39, 3, -1, 1),
    Sketcher.Constraint("Symmetric", 42, 3, 49, 3, -1, 1),
    Sketcher.Constraint("Symmetric", 44, 3, 52, 3, -1, 1),
    Sketcher.Constraint("Symmetric", 46, 3, 54, 3, -1, 1),
    Sketcher.Constraint("Symmetric", 7, 3, 10, 3, -2),
    Sketcher.Constraint("Symmetric", 4, 3, 13, 3, -2),
    Sketcher.Constraint("Symmetric", 1, 3, 15, 3, -2),
    Sketcher.Constraint("Symmetric", 20, 3, 39, 3, -2),
    Sketcher.Constraint("Symmetric", 46, 3, 49, 3, -2),
    Sketcher.Constraint("Symmetric", 44, 1, 51, 2, -2),
    Sketcher.Constraint("PointOnObject", 8, 1, -2),
    Sketcher.Constraint("PointOnObject", 29, 1, -2),
    Sketcher.Constraint("Parallel", 43, 51),
    Sketcher.Constraint("Parallel", 45, 53),
    Sketcher.Constraint("Horizontal", 6, 3, 11, 3),
    Sketcher.Constraint("Horizontal", 25, 3, 34, 3),
    Sketcher.Constraint("Horizontal", 18, 3, 41, 3),
    Sketcher.Constraint("Horizontal", 1, 1, 15, 1),
    Sketcher.Constraint("Horizontal", 22, 1, 36, 1),
    Sketcher.Constraint("Horizontal", 45, 2, 50, 1),
    Sketcher.Constraint("Horizontal", 43, 2, 52, 1),
    Sketcher.Constraint("Vertical", 15, 1, 22, 1),
    Sketcher.Constraint("Vertical", 43, 2, 44, 1),
    Sketcher.Constraint("Vertical", 47, 3, 46, 1),
    Sketcher.Constraint("Vertical", 54, 3, 49, 1),
    Sketcher.Constraint("Vertical", 48, 2, 54, 1),
    Sketcher.Constraint("Radius", 0, Q("0.3 in")),
    Sketcher.Constraint("Angle", 43, Q("-60 deg")),
    Sketcher.Constraint("Radius", 1, Q("0.866 in")),
    Sketcher.Constraint("Radius", 4, Q("1.3125 in")),
    Sketcher.Constraint("Radius", 5, Q("2.625 in")),
    Sketcher.Constraint("DistanceX", 5, 2, -1, 1, Q("0.05 in")),
    Sketcher.Constraint("DistanceY", 8, 3, -1, 1, Q("2.4095 in")),
    Sketcher.Constraint("DistanceY", 47, 1, -1, 1, Q("0.7245 in")),
    Sketcher.Constraint("Radius", 42, Q("1.389063 mm")),
    Sketcher.Constraint("DistanceX", 7, 1, -1, 1, Q("19.0589 mm")),
    Sketcher.Constraint("DistanceY", 18, 1, -1, 1, Q("32.2316 mm")),
    Sketcher.Constraint("DistanceX", 48, 2, 48, 1, Q("18.157138 mm")),
    Sketcher.Constraint("DistanceX", 1, 3, -1, 1, Q("53.001881 mm")),
    Sketcher.Constraint("DistanceY", 1, 3, -1, 1, Q("30.60065 mm")),
    Sketcher.Constraint("DistanceX", -1, 1, 18, 3, Q("27.518228 mm")),
    Sketcher.Constraint("DistanceX", 1, 1, -1, 1, Q("33.952439 mm")),
    Sketcher.Constraint("DistanceY", 2, 1, -1, 1, Q("41.615241 mm")),
    Sketcher.Constraint("DistanceX", 3, 1, -1, 1, Q("43.470739 mm")),
    Sketcher.Constraint("DistanceY", -1, 1, 42, 1, Q("17.063421 mm")),
    Sketcher.Constraint("DistanceY", -1, 1, 43, 2, Q("1.338879 mm")),
    Sketcher.Constraint("DistanceX", -1, 1, 42, 3, Q("10.053073 mm")),
])
pad2 = body.newObject("PartDesign::Pad", "Pad001")
pad2.Profile = sketch3
pad2.Length = Q("0.1875 in")

# Sketch on YZ plane
sketch4 = body.newObject("Sketcher::SketchObject", "Sketch003")
sketch4.AttachmentSupport = (doc.getObject("YZ_Plane"), [""])
sketch4.MapMode = "FlatFace"
sketch4.addGeometry([
    Part.Circle(App.Vector(45.2, 0, 0), App.Vector(0, 0, 1), 1.3),  # 0
    Part.Circle(App.Vector(22.6, 39.2, 0), App.Vector(0, 0, 1), 1.3),  # 1
    Part.Circle(App.Vector(-22.6, 39.2, 0), App.Vector(0, 0, 1), 1.3),  # 2
    Part.Circle(App.Vector(-45.2, 0, 0), App.Vector(0, 0, 1), 1.3),  # 3
    Part.Circle(App.Vector(-22.6, -39.2, 0), App.Vector(0, 0, 1), 1.3),  # 4
    Part.Circle(App.Vector(22.6, -39.2, 0), App.Vector(0, 0, 1), 1.3),  # 5
], False)
sketch4.addConstraint([
    Sketcher.Constraint("Equal", 0, 1),
    Sketcher.Constraint("Equal", 1, 2),
    Sketcher.Constraint("Equal", 2, 3),
    Sketcher.Constraint("Equal", 3, 4),
    Sketcher.Constraint("Equal", 4, 5),
    Sketcher.Constraint("Symmetric", 0, 3, 3, 3, -1, 1),
    Sketcher.Constraint("Symmetric", 1, 3, 4, 3, -1, 1),
    Sketcher.Constraint("Symmetric", 2, 3, 5, 3, -1, 1),
    Sketcher.Constraint("Symmetric", 1, 3, 2, 3, -2),
    Sketcher.Constraint("PointOnObject", 0, 3, -1),
    Sketcher.Constraint("Diameter", 0, Q("0.1 in")),
    Sketcher.Constraint("DistanceX", -1, 1, 0, 3, Q("1.78 in")),
    Sketcher.Constraint("DistanceX", -1, 1, 1, 3, Q("0.89 in")),
    Sketcher.Constraint("DistanceY", -1, 1, 1, 3, Q("39.154741 mm")),
])
pocket2 = body.newObject("PartDesign::Pocket", "Pocket001")
pocket2.Profile = sketch4
pocket2.Type = "ThroughAll"
pocket2.Reversed = True

doc.recompute()
